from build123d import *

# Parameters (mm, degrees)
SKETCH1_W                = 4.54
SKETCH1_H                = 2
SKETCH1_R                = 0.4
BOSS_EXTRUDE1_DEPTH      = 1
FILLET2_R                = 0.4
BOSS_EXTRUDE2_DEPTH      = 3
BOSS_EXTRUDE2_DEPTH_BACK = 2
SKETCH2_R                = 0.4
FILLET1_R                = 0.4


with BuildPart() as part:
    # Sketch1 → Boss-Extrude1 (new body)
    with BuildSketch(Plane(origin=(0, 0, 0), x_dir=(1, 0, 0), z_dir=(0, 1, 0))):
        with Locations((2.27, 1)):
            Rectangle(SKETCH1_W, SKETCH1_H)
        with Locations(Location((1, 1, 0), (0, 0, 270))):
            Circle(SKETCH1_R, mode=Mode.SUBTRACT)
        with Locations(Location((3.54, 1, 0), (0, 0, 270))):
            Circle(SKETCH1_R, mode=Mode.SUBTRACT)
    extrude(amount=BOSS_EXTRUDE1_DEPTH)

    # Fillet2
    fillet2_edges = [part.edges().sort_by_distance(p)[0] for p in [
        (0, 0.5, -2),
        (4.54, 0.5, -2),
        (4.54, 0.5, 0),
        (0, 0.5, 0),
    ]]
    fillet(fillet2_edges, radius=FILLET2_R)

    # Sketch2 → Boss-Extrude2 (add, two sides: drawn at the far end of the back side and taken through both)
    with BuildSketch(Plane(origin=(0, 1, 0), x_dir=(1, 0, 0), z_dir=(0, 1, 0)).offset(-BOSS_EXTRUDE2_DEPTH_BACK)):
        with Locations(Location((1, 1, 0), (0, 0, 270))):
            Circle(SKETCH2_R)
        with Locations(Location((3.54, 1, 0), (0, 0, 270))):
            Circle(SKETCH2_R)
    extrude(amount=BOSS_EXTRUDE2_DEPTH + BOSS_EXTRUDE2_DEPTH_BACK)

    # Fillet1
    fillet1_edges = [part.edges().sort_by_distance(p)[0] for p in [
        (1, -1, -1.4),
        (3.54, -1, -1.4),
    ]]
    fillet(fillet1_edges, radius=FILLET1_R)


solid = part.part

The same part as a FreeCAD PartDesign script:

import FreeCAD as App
import Part
import Sketcher
from FreeCAD import Vector
Q = App.Units.Quantity


def edges_at(feature, points):
    """Names of the edges that pass closest to the given points."""
    edges = feature.Shape.Edges
    near = lambda p: min(range(len(edges)), key=lambda i: edges[i].distToShape(Part.Vertex(*p))[0])
    return sorted({f"Edge{near(p) + 1}" for p in points})


def add_polygon(sketch, points):
    """Adds a closed chain of lines whose ends are joined by coincident constraints."""
    first, n = sketch.GeometryCount, len(points)
    for a, b in zip(points, points[1:] + points[:1]):
        sketch.addGeometry(Part.LineSegment(App.Vector(*a, 0), App.Vector(*b, 0)), False)
    for i in range(n):
        sketch.addConstraint(Sketcher.Constraint("Coincident", first + i, 2, first + (i + 1) % n, 1))

doc = App.newDocument("Part")
body = doc.addObject("PartDesign::Body", "Body")

# Sketch on XZ plane
sketch1 = body.newObject("Sketcher::SketchObject", "Sketch")
sketch1.AttachmentSupport = (doc.getObject("XZ_Plane"), [""])
sketch1.MapMode = "FlatFace"
add_polygon(sketch1, [(0, -2), (0, 0), (4.54, 0), (4.54, -2)])  # lines 0-3
sketch1.addGeometry(Part.Circle(Vector(1, -1, 0), Vector(0, 0, 1), 0.4), False)  # 4
sketch1.addGeometry(Part.Circle(Vector(3.54, -1, 0), Vector(0, 0, 1), 0.4), False)  # 5
sketch1.addConstraint([
    Sketcher.Constraint("Vertical", 0),
    Sketcher.Constraint("Horizontal", 1),
    Sketcher.Constraint("Vertical", 2),
    Sketcher.Constraint("Horizontal", 3),
    Sketcher.Constraint("Coincident", 0, 2, -1, 1),
    Sketcher.Constraint("Equal", 4, 5),
    Sketcher.Constraint("Horizontal", 4, 3, 5, 3),
    Sketcher.Constraint("Diameter", 4, Q("0.8 mm")),
    Sketcher.Constraint("DistanceY", 0, 1, 0, 2, Q("2 mm")),
    Sketcher.Constraint("DistanceX", -1, 1, 4, 3, Q("1 mm")),
    Sketcher.Constraint("DistanceY", 4, 3, -1, 1, Q("1 mm")),
    Sketcher.Constraint("DistanceX", 5, 3, 1, 2, Q("1 mm")),
    Sketcher.Constraint("DistanceX", 1, 1, 1, 2, Q("4.54 mm")),
])
pad1 = body.newObject("PartDesign::Pad", "Pad")
pad1.Profile = sketch1
pad1.Length = 1
pad1.Reversed = True
doc.recompute()

fillet = body.newObject("PartDesign::Fillet", "Fillet")
fillet.Base = (pad1, edges_at(pad1, [
    (0, 0.5, -2),
    (4.54, 0.5, -2),
    (4.54, 0.5, 0),
    (0, 0.5, 0),
]))
fillet.Radius = 0.4

# Sketch on XZ plane
sketch2 = body.newObject("Sketcher::SketchObject", "Sketch001")
sketch2.AttachmentSupport = (doc.getObject("XZ_Plane"), [""])
sketch2.MapMode = "FlatFace"
sketch2.AttachmentOffset = App.Placement(Vector(0, 0, -1), App.Rotation())
sketch2.addGeometry([
    Part.Circle(Vector(1, -1, 0), Vector(0, 0, 1), 0.4),
    Part.Circle(Vector(3.54, -1, 0), Vector(0, 0, 1), 0.4),
], False)
sketch2.addConstraint([
    Sketcher.Constraint("Equal", 0, 1),
    Sketcher.Constraint("Horizontal", 0, 3, 1, 3),
    Sketcher.Constraint("Diameter", 0, Q("0.8 mm")),
    Sketcher.Constraint("DistanceX", -1, 1, 0, 3, Q("1 mm")),
    Sketcher.Constraint("DistanceY", 0, 3, -1, 1, Q("1 mm")),
    Sketcher.Constraint("DistanceX", -1, 1, 1, 3, Q("3.54 mm")),
])
pad2 = body.newObject("PartDesign::Pad", "Pad001")
pad2.Profile = sketch2
pad2.Type = "TwoLengths"
pad2.Length = 3
pad2.Length2 = 2
pad2.Reversed = True
doc.recompute()

fillet2 = body.newObject("PartDesign::Fillet", "Fillet001")
fillet2.Base = (pad2, edges_at(pad2, [(1, -1, -1.4), (3.54, -1, -1.4)]))
fillet2.Radius = 0.4

doc.recompute()
